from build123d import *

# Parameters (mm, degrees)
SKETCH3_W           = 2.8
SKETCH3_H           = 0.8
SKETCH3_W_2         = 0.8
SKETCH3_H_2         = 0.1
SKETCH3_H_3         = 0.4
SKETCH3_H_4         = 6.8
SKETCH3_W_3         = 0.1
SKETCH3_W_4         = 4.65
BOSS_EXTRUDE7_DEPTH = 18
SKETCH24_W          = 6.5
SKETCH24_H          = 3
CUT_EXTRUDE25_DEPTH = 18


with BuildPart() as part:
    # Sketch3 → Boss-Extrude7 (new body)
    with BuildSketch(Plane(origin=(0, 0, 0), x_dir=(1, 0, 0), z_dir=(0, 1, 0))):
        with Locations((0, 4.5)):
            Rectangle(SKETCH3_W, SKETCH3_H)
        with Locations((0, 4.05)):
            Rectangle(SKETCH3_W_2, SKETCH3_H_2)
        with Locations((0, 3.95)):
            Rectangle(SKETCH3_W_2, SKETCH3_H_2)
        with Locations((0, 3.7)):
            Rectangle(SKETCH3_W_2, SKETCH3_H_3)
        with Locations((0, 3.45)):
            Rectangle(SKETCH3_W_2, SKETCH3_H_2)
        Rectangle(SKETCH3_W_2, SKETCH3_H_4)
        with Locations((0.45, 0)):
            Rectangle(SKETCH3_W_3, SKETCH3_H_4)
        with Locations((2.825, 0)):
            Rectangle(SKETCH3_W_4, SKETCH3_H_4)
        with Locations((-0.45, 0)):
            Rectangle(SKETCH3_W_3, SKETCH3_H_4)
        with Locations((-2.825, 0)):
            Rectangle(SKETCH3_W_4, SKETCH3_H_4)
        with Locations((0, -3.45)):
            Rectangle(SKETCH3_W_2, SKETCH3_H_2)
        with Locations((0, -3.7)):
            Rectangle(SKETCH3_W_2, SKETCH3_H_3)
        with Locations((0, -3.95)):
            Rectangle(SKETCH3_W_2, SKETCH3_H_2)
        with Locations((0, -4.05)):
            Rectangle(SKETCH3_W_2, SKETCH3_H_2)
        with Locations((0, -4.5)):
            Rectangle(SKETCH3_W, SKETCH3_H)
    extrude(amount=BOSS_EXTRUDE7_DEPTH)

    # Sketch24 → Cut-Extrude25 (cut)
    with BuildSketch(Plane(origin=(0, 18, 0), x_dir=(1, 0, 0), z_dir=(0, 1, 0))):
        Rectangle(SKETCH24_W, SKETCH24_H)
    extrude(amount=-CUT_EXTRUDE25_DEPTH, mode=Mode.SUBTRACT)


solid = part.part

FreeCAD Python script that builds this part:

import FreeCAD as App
import Part
import Sketcher

V = App.Vector
Q = App.Units.Quantity


def add_polygon(sketch, points):
    """Adds a closed chain of lines whose ends are joined by coincident constraints."""
    first, n = sketch.GeometryCount, len(points)
    for a, b in zip(points, points[1:] + points[:1]):
        sketch.addGeometry(Part.LineSegment(App.Vector(*a, 0), App.Vector(*b, 0)), False)
    for i in range(n):
        sketch.addConstraint(Sketcher.Constraint("Coincident", first + i, 2, first + (i + 1) % n, 1))

doc = App.newDocument("Part")
body = doc.addObject("PartDesign::Body", "Body")

sketch1 = body.newObject("Sketcher::SketchObject", "Sketch")
sketch1.AttachmentSupport = (doc.getObject("XZ_Plane"), [""])
sketch1.MapMode = "FlatFace"
add_polygon(sketch1, [(-1.4, -4.9), (-1.4, -4.1), (-0.4, -4.1), (-0.4, -3.4), (-5.15, -3.4), (-5.15, 3.4), (-0.4, 3.4), (-0.4, 4.1), (-1.4, 4.1), (-1.4, 4.9), (1.4, 4.9), (1.4, 4.1), (0.4, 4.1), (0.4, 3.4), (5.15, 3.4), (5.15, -3.4), (0.4, -3.4), (0.4, -4.1), (1.4, -4.1), (1.4, -4.9)])
sketch1.addConstraint([
    Sketcher.Constraint("Vertical", 0),
    Sketcher.Constraint("Horizontal", 1),
    Sketcher.Constraint("Vertical", 2),
    Sketcher.Constraint("Horizontal", 3),
    Sketcher.Constraint("Vertical", 4),
    Sketcher.Constraint("Horizontal", 5),
    Sketcher.Constraint("Vertical", 6),
    Sketcher.Constraint("Horizontal", 7),
    Sketcher.Constraint("Vertical", 8),
    Sketcher.Constraint("Horizontal", 9),
    Sketcher.Constraint("Vertical", 10),
    Sketcher.Constraint("Horizontal", 11),
    Sketcher.Constraint("Vertical", 12),
    Sketcher.Constraint("Horizontal", 13),
    Sketcher.Constraint("Vertical", 14),
    Sketcher.Constraint("Horizontal", 15),
    Sketcher.Constraint("Vertical", 16),
    Sketcher.Constraint("Horizontal", 17),
    Sketcher.Constraint("Vertical", 18),
    Sketcher.Constraint("Horizontal", 19),
    Sketcher.Constraint("Symmetric", 0, 2, 10, 2, -1, 1),
    Sketcher.Constraint("Symmetric", 2, 2, 12, 2, -1, 1),
    Sketcher.Constraint("Symmetric", 4, 2, 14, 2, -1, 1),
    Sketcher.Constraint("Symmetric", 6, 2, 16, 2, -1, 1),
    Sketcher.Constraint("Symmetric", 8, 2, 18, 2, -1, 1),
    Sketcher.Constraint("Symmetric", 7, 2, 10, 2, -2),
    Sketcher.Constraint("Symmetric", 5, 2, 12, 2, -2),
    Sketcher.Constraint("DistanceX", 1, 1, 1, 2, Q("1 mm")),
    Sketcher.Constraint("DistanceX", 9, 1, 9, 2, Q("2.8 mm")),
    Sketcher.Constraint("DistanceY", 0, 1, 0, 2, Q("0.8 mm")),
    Sketcher.Constraint("DistanceY", 2, 1, 2, 2, Q("0.7 mm")),
    Sketcher.Constraint("DistanceY", 4, 1, 4, 2, Q("6.8 mm")),
    Sketcher.Constraint("DistanceX", 3, 2, 3, 1, Q("4.75 mm")),
])
pad1 = body.newObject("PartDesign::Pad", "Pad")
pad1.Profile = sketch1
pad1.Length = 18
pad1.Reversed = True

sketch2 = body.newObject("Sketcher::SketchObject", "Sketch001")
sketch2.AttachmentSupport = (doc.getObject("XZ_Plane"), [""])
sketch2.MapMode = "FlatFace"
sketch2.AttachmentOffset = App.Placement(V(0, 0, -18), App.Rotation())
add_polygon(sketch2, [(-3.25, -1.5), (-3.25, 1.5), (3.25, 1.5), (3.25, -1.5)])
sketch2.addConstraint([
    Sketcher.Constraint("Vertical", 0),
    Sketcher.Constraint("Horizontal", 1),
    Sketcher.Constraint("Vertical", 2),
    Sketcher.Constraint("Horizontal", 3),
    Sketcher.Constraint("Symmetric", 0, 2, 2, 2, -1, 1),
    Sketcher.Constraint("DistanceY", 0, 1, 0, 2, Q("3 mm")),
    Sketcher.Constraint("DistanceX", 1, 1, 1, 2, Q("6.5 mm")),
])
pocket1 = body.newObject("PartDesign::Pocket", "Pocket")
pocket1.Profile = sketch2
pocket1.Length = 18
pocket1.Reversed = True

doc.recompute()
